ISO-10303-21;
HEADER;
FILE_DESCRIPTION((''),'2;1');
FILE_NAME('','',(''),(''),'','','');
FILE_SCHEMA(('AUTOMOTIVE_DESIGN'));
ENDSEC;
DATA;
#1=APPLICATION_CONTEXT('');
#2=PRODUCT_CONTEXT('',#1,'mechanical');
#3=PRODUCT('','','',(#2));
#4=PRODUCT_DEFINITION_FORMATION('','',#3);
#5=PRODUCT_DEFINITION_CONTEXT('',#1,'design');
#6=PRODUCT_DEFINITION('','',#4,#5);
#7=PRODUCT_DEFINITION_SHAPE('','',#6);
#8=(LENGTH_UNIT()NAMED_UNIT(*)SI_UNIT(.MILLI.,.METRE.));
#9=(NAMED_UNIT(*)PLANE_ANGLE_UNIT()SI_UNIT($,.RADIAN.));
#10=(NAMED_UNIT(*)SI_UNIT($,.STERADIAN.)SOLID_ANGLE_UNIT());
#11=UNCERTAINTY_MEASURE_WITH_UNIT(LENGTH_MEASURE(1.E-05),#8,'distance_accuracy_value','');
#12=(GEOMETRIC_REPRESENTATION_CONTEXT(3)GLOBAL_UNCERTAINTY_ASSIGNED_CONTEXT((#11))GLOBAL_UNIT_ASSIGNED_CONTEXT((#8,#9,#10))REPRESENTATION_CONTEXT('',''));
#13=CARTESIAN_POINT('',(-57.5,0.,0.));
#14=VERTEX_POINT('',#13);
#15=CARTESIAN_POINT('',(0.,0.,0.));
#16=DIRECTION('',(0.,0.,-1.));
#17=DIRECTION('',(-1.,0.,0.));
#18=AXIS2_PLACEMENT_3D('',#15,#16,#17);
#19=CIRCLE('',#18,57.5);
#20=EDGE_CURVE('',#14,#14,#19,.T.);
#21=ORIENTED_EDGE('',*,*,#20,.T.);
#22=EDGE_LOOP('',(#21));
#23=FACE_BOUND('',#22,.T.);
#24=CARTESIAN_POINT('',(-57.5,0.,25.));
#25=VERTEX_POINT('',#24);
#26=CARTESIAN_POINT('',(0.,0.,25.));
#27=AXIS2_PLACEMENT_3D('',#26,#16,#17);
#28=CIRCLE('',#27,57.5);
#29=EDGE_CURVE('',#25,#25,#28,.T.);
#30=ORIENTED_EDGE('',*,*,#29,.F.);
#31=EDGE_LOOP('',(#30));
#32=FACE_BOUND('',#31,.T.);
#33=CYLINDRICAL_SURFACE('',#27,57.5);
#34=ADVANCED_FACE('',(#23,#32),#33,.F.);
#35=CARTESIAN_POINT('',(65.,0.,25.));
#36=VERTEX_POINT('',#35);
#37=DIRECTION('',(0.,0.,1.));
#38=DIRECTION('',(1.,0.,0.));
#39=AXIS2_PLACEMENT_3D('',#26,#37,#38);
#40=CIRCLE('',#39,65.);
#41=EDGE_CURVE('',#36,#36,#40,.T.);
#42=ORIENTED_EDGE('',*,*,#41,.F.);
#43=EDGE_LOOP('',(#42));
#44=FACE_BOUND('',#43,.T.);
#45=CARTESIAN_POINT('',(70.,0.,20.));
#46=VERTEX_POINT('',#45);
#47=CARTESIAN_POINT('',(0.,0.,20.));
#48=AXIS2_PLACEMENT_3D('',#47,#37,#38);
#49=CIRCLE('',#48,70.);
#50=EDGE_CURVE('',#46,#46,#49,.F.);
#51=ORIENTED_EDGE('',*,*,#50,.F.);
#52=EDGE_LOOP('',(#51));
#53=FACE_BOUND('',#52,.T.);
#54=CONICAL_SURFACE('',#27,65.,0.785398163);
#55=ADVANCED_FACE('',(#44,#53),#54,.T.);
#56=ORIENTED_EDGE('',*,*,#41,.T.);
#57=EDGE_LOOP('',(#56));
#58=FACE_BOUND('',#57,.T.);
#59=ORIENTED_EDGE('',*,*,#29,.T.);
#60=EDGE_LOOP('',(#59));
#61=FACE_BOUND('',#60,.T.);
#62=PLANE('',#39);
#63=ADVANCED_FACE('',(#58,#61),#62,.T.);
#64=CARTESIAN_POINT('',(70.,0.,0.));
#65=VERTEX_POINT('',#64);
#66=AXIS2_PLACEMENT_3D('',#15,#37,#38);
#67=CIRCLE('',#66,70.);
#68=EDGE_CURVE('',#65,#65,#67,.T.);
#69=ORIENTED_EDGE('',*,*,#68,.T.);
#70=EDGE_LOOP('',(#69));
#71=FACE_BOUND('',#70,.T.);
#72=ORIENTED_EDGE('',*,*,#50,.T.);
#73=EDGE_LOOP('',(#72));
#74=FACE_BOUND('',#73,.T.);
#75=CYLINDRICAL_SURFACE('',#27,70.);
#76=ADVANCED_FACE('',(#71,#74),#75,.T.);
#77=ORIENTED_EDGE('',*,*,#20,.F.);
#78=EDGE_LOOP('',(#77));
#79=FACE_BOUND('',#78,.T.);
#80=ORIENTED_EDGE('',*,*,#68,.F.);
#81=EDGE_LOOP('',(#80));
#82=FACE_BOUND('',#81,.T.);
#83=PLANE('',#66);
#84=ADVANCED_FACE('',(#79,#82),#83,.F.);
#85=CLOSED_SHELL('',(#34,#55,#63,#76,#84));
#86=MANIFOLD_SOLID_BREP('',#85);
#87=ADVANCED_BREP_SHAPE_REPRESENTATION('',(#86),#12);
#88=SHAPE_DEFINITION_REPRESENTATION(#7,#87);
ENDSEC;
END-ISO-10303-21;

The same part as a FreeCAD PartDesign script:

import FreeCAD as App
import Part
import Sketcher
from FreeCAD import Vector
Q = App.Units.Quantity


def edges_at(feature, points):
    """Names of the edges that pass closest to the given points."""
    edges = feature.Shape.Edges
    near = lambda p: min(range(len(edges)), key=lambda i: edges[i].distToShape(Part.Vertex(*p))[0])
    return sorted({f"Edge{near(p) + 1}" for p in points})

doc = App.newDocument("Part")
body = doc.addObject("PartDesign::Body", "Body")

# Sketch on XY plane
sketch1 = body.newObject("Sketcher::SketchObject", "Sketch")
sketch1.AttachmentSupport = (doc.getObject("XY_Plane"), [""])
sketch1.MapMode = "FlatFace"
sketch1.addGeometry(Part.Circle(Vector(0, 0, 0), Vector(0, 0, 1), 70), False)
sketch1.addConstraint(Sketcher.Constraint("Coincident", 0, 3, -1, 1))
sketch1.addConstraint(Sketcher.Constraint("Diameter", 0, Q("140 mm")))
pad1 = body.newObject("PartDesign::Pad", "Pad")
pad1.Profile = sketch1
pad1.Length = 25
doc.recompute()

chamfer = body.newObject("PartDesign::Chamfer", "Chamfer")
chamfer.Base = (pad1, edges_at(pad1, [(-70, 0, 25)]))
chamfer.Size = 5

# Sketch on XY plane
sketch2 = body.newObject("Sketcher::SketchObject", "Sketch001")
sketch2.AttachmentSupport = (doc.getObject("XY_Plane"), [""])
sketch2.MapMode = "FlatFace"
sketch2.addGeometry(Part.Circle(Vector(0, 0, 0), Vector(0, 0, 1), 58), False)
sketch2.addConstraint(Sketcher.Constraint("Coincident", 0, 3, -1, 1))
sketch2.addConstraint(Sketcher.Constraint("Diameter", 0, Q("115 mm")))
pocket1 = body.newObject("PartDesign::Pocket", "Pocket")
pocket1.Profile = sketch2
pocket1.Type = "ThroughAll"
pocket1.Reversed = True

doc.recompute()
